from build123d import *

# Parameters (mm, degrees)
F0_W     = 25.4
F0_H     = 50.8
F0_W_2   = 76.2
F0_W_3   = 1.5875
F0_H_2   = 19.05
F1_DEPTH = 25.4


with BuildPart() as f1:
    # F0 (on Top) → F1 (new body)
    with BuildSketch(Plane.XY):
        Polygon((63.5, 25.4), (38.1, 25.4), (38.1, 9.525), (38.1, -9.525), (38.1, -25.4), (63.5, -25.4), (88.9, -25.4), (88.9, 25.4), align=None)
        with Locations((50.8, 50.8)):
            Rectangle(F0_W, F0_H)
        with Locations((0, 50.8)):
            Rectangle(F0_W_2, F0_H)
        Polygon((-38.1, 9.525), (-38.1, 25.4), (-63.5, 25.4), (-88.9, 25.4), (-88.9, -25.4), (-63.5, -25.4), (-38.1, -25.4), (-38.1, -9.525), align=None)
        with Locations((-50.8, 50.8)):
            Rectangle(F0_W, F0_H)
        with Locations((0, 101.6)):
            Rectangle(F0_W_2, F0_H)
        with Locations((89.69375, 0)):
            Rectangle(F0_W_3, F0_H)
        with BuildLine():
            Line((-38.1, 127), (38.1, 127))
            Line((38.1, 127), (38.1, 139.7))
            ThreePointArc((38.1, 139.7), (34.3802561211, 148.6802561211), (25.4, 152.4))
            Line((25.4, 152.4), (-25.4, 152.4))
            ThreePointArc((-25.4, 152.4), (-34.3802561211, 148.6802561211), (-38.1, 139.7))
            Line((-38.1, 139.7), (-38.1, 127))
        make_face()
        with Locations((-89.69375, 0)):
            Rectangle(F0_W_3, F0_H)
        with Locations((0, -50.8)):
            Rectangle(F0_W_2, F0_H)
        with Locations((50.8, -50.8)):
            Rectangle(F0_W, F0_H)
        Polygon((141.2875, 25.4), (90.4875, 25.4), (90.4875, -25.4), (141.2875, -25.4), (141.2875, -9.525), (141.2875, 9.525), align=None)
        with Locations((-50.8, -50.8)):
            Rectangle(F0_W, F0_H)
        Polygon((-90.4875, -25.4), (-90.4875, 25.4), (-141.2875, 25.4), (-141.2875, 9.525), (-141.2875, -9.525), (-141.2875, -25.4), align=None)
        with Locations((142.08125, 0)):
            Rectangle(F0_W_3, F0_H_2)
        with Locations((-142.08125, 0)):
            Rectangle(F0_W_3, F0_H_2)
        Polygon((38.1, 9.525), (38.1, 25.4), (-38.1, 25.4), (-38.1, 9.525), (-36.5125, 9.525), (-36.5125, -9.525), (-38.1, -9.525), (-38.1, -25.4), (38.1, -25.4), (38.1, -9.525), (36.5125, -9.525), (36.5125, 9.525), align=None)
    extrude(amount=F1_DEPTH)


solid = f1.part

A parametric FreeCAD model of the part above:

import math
import FreeCAD as App
import Part
import Sketcher
Q = App.Units.Quantity


def add_polygon(sketch, points):
    """Adds a closed chain of lines whose ends are joined by coincident constraints."""
    first, n = sketch.GeometryCount, len(points)
    for a, b in zip(points, points[1:] + points[:1]):
        sketch.addGeometry(Part.LineSegment(App.Vector(*a, 0), App.Vector(*b, 0)), False)
    for i in range(n):
        sketch.addConstraint(Sketcher.Constraint("Coincident", first + i, 2, first + (i + 1) % n, 1))

doc = App.newDocument("Part")
body = doc.addObject("PartDesign::Body", "Body")

# Sketch on XY plane
sketch1 = body.newObject("Sketcher::SketchObject", "Sketch")
sketch1.AttachmentSupport = (doc.getObject("XY_Plane"), [""])
sketch1.MapMode = "FlatFace"
sketch1.addGeometry(Part.LineSegment(App.Vector(-63.5, -25.4, 0), App.Vector(-63.5, -76.2, 0)), False)  # 0
sketch1.addGeometry(Part.LineSegment(App.Vector(-63.5, -76.2, 0), App.Vector(63.5, -76.2, 0)), False)  # 1
sketch1.addGeometry(Part.LineSegment(App.Vector(63.5, -76.2, 0), App.Vector(63.5, -25.4, 0)), False)  # 2
sketch1.addGeometry(Part.LineSegment(App.Vector(63.5, -25.4, 0), App.Vector(141.3, -25.4, 0)), False)  # 3
sketch1.addGeometry(Part.LineSegment(App.Vector(141.3, -25.4, 0), App.Vector(141.3, -9.5, 0)), False)  # 4
sketch1.addGeometry(Part.LineSegment(App.Vector(141.3, -9.5, 0), App.Vector(142.9, -9.5, 0)), False)  # 5
sketch1.addGeometry(Part.LineSegment(App.Vector(142.9, -9.5, 0), App.Vector(142.9, 9.5, 0)), False)  # 6
sketch1.addGeometry(Part.LineSegment(App.Vector(142.9, 9.5, 0), App.Vector(141.3, 9.5, 0)), False)  # 7
sketch1.addGeometry(Part.LineSegment(App.Vector(141.3, 9.5, 0), App.Vector(141.3, 25.4, 0)), False)  # 8
sketch1.addGeometry(Part.LineSegment(App.Vector(141.3, 25.4, 0), App.Vector(63.5, 25.4, 0)), False)  # 9
sketch1.addGeometry(Part.LineSegment(App.Vector(63.5, 25.4, 0), App.Vector(63.5, 76.2, 0)), False)  # 10
sketch1.addGeometry(Part.LineSegment(App.Vector(63.5, 76.2, 0), App.Vector(38.1, 76.2, 0)), False)  # 11
sketch1.addGeometry(Part.LineSegment(App.Vector(38.1, 76.2, 0), App.Vector(38.1, 139.7, 0)), False)  # 12
sketch1.addGeometry(Part.ArcOfCircle(Part.Circle(App.Vector(25.4, 139.7, 0), App.Vector(0, 0, 1), 12.7), math.radians(0), math.radians(90)), False)  # 13
sketch1.addGeometry(Part.LineSegment(App.Vector(25.4, 152.4, 0), App.Vector(-25.4, 152.4, 0)), False)  # 14
sketch1.addGeometry(Part.ArcOfCircle(Part.Circle(App.Vector(-25.4, 139.7, 0), App.Vector(0, 0, 1), 12.7), math.radians(90), math.radians(180)), False)  # 15
sketch1.addGeometry(Part.LineSegment(App.Vector(-38.1, 139.7, 0), App.Vector(-38.1, 76.2, 0)), False)  # 16
sketch1.addGeometry(Part.LineSegment(App.Vector(-38.1, 76.2, 0), App.Vector(-63.5, 76.2, 0)), False)  # 17
sketch1.addGeometry(Part.LineSegment(App.Vector(-63.5, 76.2, 0), App.Vector(-63.5, 25.4, 0)), False)  # 18
sketch1.addGeometry(Part.LineSegment(App.Vector(-63.5, 25.4, 0), App.Vector(-141.3, 25.4, 0)), False)  # 19
sketch1.addGeometry(Part.LineSegment(App.Vector(-141.3, 25.4, 0), App.Vector(-141.3, 9.5, 0)), False)  # 20
sketch1.addGeometry(Part.LineSegment(App.Vector(-141.3, 9.5, 0), App.Vector(-142.9, 9.5, 0)), False)  # 21
sketch1.addGeometry(Part.LineSegment(App.Vector(-142.9, 9.5, 0), App.Vector(-142.9, -9.5, 0)), False)  # 22
sketch1.addGeometry(Part.LineSegment(App.Vector(-142.9, -9.5, 0), App.Vector(-141.3, -9.5, 0)), False)  # 23
sketch1.addGeometry(Part.LineSegment(App.Vector(-141.3, -9.5, 0), App.Vector(-141.3, -25.4, 0)), False)  # 24
sketch1.addGeometry(Part.LineSegment(App.Vector(-141.3, -25.4, 0), App.Vector(-63.5, -25.4, 0)), False)  # 25
add_polygon(sketch1, [(-38.1, -9.5), (-38.1, 9.5), (-36.5, 9.5), (-36.5, -9.5)])  # lines 26-29
add_polygon(sketch1, [(38.1, 9.5), (38.1, -9.5), (36.5, -9.5), (36.5, 9.5)])  # lines 30-33
sketch1.addConstraint([
    Sketcher.Constraint("Coincident", 0, 2, 1, 1),
    Sketcher.Constraint("Coincident", 1, 2, 2, 1),
    Sketcher.Constraint("Coincident", 2, 2, 3, 1),
    Sketcher.Constraint("Coincident", 3, 2, 4, 1),
    Sketcher.Constraint("Coincident", 4, 2, 5, 1),
    Sketcher.Constraint("Coincident", 5, 2, 6, 1),
    Sketcher.Constraint("Coincident", 6, 2, 7, 1),
    Sketcher.Constraint("Coincident", 7, 2, 8, 1),
    Sketcher.Constraint("Coincident", 8, 2, 9, 1),
    Sketcher.Constraint("Coincident", 9, 2, 10, 1),
    Sketcher.Constraint("Coincident", 10, 2, 11, 1),
    Sketcher.Constraint("Coincident", 11, 2, 12, 1),
    Sketcher.Constraint("Tangent", 12, 2, 13, 1),
    Sketcher.Constraint("Tangent", 13, 2, 14, 1),
    Sketcher.Constraint("Tangent", 14, 2, 15, 1),
    Sketcher.Constraint("Tangent", 15, 2, 16, 1),
    Sketcher.Constraint("Coincident", 16, 2, 17, 1),
    Sketcher.Constraint("Coincident", 17, 2, 18, 1),
    Sketcher.Constraint("Coincident", 18, 2, 19, 1),
    Sketcher.Constraint("Coincident", 19, 2, 20, 1),
    Sketcher.Constraint("Coincident", 20, 2, 21, 1),
    Sketcher.Constraint("Coincident", 21, 2, 22, 1),
    Sketcher.Constraint("Coincident", 22, 2, 23, 1),
    Sketcher.Constraint("Coincident", 23, 2, 24, 1),
    Sketcher.Constraint("Coincident", 24, 2, 25, 1),
    Sketcher.Constraint("Coincident", 25, 2, 0, 1),
    Sketcher.Constraint("Vertical", 0),
    Sketcher.Constraint("Horizontal", 1),
    Sketcher.Constraint("Vertical", 2),
    Sketcher.Constraint("Horizontal", 3),
    Sketcher.Constraint("Vertical", 4),
    Sketcher.Constraint("Horizontal", 5),
    Sketcher.Constraint("Vertical", 6),
    Sketcher.Constraint("Horizontal", 7),
    Sketcher.Constraint("Vertical", 8),
    Sketcher.Constraint("Horizontal", 9),
    Sketcher.Constraint("Vertical", 10),
    Sketcher.Constraint("Horizontal", 11),
    Sketcher.Constraint("Vertical", 12),
    Sketcher.Constraint("Horizontal", 14),
    Sketcher.Constraint("Vertical", 16),
    Sketcher.Constraint("Horizontal", 17),
    Sketcher.Constraint("Vertical", 18),
    Sketcher.Constraint("Horizontal", 19),
    Sketcher.Constraint("Vertical", 20),
    Sketcher.Constraint("Horizontal", 21),
    Sketcher.Constraint("Vertical", 22),
    Sketcher.Constraint("Horizontal", 23),
    Sketcher.Constraint("Vertical", 24),
    Sketcher.Constraint("Horizontal", 25),
    Sketcher.Constraint("Vertical", 26),
    Sketcher.Constraint("Horizontal", 27),
    Sketcher.Constraint("Vertical", 28),
    Sketcher.Constraint("Horizontal", 29),
    Sketcher.Constraint("Vertical", 30),
    Sketcher.Constraint("Horizontal", 31),
    Sketcher.Constraint("Vertical", 32),
    Sketcher.Constraint("Horizontal", 33),
    Sketcher.Constraint("Equal", 13, 15),
    Sketcher.Constraint("Symmetric", 0, 2, 10, 2, -1, 1),
    Sketcher.Constraint("Symmetric", 1, 2, 17, 2, -1, 1),
    Sketcher.Constraint("Symmetric", 3, 2, 19, 2, -1, 1),
    Sketcher.Constraint("Symmetric", 5, 2, 21, 2, -1, 1),
    Sketcher.Constraint("Symmetric", 7, 2, 23, 2, -1, 1),
    Sketcher.Constraint("Symmetric", 26, 2, 30, 2, -1, 1),
    Sketcher.Constraint("Symmetric", 28, 2, 32, 2, -1, 1),
    Sketcher.Constraint("Symmetric", 9, 2, 18, 2, -2),
    Sketcher.Constraint("Symmetric", 7, 2, 20, 2, -2),
    Sketcher.Constraint("Horizontal", 3, 2, 24, 2),
    Sketcher.Constraint("Horizontal", 21, 2, 26, 2),
    Sketcher.Constraint("Horizontal", 23, 2, 28, 2),
    Sketcher.Constraint("Vertical", 16, 2, 26, 2),
    Sketcher.Constraint("Vertical", 12, 2, 30, 2),
    Sketcher.Constraint("Equal", 23, 27),
    Sketcher.Constraint("Equal", 14, 0),
    Sketcher.Constraint("Radius", 13, Q("0.5 in")),
    Sketcher.Constraint("DistanceX", 1, 1, 1, 2, Q("5 in")),
    Sketcher.Constraint("DistanceX", 11, 2, 11, 1, Q("1 in")),
    Sketcher.Constraint("DistanceY", 12, 1, 12, 2, Q("2.5 in")),
    Sketcher.Constraint("DistanceY", 0, 2, -1, 1, Q("3 in")),
    Sketcher.Constraint("DistanceY", 6, 1, 6, 2, Q("0.75 in")),
    Sketcher.Constraint("DistanceX", 3, 1, 3, 2, Q("3.0625 in")),
    Sketcher.Constraint("DistanceX", 5, 1, 5, 2, Q("0.0625 in")),
])
pad1 = body.newObject("PartDesign::Pad", "Pad")
pad1.Profile = sketch1
pad1.Length = Q("1 in")

doc.recompute()
